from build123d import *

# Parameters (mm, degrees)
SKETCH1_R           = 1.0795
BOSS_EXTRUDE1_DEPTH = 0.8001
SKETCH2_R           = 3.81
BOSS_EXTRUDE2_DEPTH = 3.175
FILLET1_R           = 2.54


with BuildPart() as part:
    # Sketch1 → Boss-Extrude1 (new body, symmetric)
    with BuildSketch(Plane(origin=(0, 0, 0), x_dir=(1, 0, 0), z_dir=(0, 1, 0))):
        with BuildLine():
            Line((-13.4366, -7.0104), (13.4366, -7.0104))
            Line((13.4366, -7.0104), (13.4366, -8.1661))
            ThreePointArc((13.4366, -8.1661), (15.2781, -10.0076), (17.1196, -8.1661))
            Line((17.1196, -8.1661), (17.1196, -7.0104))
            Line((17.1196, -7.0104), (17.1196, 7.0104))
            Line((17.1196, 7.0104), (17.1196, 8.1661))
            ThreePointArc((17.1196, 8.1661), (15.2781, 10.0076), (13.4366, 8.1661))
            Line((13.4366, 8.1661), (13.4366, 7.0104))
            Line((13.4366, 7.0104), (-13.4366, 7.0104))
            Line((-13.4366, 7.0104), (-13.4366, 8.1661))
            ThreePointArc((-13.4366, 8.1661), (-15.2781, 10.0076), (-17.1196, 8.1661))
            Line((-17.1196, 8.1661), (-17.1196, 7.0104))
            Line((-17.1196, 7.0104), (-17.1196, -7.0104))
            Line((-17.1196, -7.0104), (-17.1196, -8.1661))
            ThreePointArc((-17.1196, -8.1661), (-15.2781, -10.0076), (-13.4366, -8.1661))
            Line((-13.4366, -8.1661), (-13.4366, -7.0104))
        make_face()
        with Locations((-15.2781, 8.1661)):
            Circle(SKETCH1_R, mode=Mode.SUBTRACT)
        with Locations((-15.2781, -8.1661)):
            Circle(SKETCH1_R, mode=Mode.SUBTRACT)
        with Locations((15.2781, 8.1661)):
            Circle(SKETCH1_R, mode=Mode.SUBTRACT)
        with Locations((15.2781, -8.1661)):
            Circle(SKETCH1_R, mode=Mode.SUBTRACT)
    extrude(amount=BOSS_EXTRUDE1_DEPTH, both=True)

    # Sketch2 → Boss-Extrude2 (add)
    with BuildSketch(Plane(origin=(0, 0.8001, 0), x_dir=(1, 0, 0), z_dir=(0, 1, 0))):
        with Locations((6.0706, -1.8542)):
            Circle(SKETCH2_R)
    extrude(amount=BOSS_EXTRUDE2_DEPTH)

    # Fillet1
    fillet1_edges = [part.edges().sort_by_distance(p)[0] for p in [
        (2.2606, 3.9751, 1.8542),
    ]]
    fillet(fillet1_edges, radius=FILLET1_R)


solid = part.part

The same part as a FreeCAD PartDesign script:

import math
import FreeCAD as App
import Part
import Sketcher

V = App.Vector
Q = App.Units.Quantity


def edges_at(feature, points):
    """Names of the edges that pass closest to the given points."""
    edges = feature.Shape.Edges
    near = lambda p: min(range(len(edges)), key=lambda i: edges[i].distToShape(Part.Vertex(*p))[0])
    return sorted({f"Edge{near(p) + 1}" for p in points})

doc = App.newDocument("Part")
body = doc.addObject("PartDesign::Body", "Body")

# Sketch on XZ plane
sketch1 = body.newObject("Sketcher::SketchObject", "Sketch")
sketch1.AttachmentSupport = (doc.getObject("XZ_Plane"), [""])
sketch1.MapMode = "FlatFace"
sketch1.addGeometry(Part.LineSegment(V(-13.4, 7, 0), V(13.4, 7, 0)), False)
sketch1.addGeometry(Part.LineSegment(V(13.4, 7, 0), V(13.4, 8.2, 0)), False)
sketch1.addGeometry(Part.ArcOfCircle(Part.Circle(V(15.3, 8.2, 0), V(0, 0, 1), 1.8), math.radians(0), math.radians(180)), False)
sketch1.addGeometry(Part.LineSegment(V(17.1, 8.2, 0), V(17.1, -8.2, 0)), False)
sketch1.addGeometry(Part.ArcOfCircle(Part.Circle(V(15.3, -8.2, 0), V(0, 0, 1), 1.8), math.radians(180), math.radians(360)), False)
sketch1.addGeometry(Part.LineSegment(V(13.4, -8.2, 0), V(13.4, -7, 0)), False)
sketch1.addGeometry(Part.LineSegment(V(13.4, -7, 0), V(-13.4, -7, 0)), False)
sketch1.addGeometry(Part.LineSegment(V(-13.4, -7, 0), V(-13.4, -8.2, 0)), False)
sketch1.addGeometry(Part.ArcOfCircle(Part.Circle(V(-15.3, -8.2, 0), V(0, 0, 1), 1.8), math.radians(180), math.radians(360)), False)
sketch1.addGeometry(Part.LineSegment(V(-17.1, -8.2, 0), V(-17.1, 8.2, 0)), False)
sketch1.addGeometry(Part.ArcOfCircle(Part.Circle(V(-15.3, 8.2, 0), V(0, 0, 1), 1.8), math.radians(0), math.radians(180)), False)
sketch1.addGeometry(Part.LineSegment(V(-13.4, 8.2, 0), V(-13.4, 7, 0)), False)
sketch1.addGeometry(Part.Circle(V(-15.3, 8.2, 0), V(0, 0, 1), 1.1), False)
sketch1.addGeometry(Part.Circle(V(15.3, 8.2, 0), V(0, 0, 1), 1.1), False)
sketch1.addGeometry(Part.Circle(V(-15.3, -8.2, 0), V(0, 0, 1), 1.1), False)
sketch1.addGeometry(Part.Circle(V(15.3, -8.2, 0), V(0, 0, 1), 1.1), False)
sketch1.addConstraint(Sketcher.Constraint("Coincident", 0, 2, 1, 1))
sketch1.addConstraint(Sketcher.Constraint("Tangent", 1, 2, 2, 2))
sketch1.addConstraint(Sketcher.Constraint("Tangent", 2, 1, 3, 1))
sketch1.addConstraint(Sketcher.Constraint("Tangent", 3, 2, 4, 2))
sketch1.addConstraint(Sketcher.Constraint("Tangent", 4, 1, 5, 1))
sketch1.addConstraint(Sketcher.Constraint("Coincident", 5, 2, 6, 1))
sketch1.addConstraint(Sketcher.Constraint("Coincident", 6, 2, 7, 1))
sketch1.addConstraint(Sketcher.Constraint("Tangent", 7, 2, 8, 2))
sketch1.addConstraint(Sketcher.Constraint("Tangent", 8, 1, 9, 1))
sketch1.addConstraint(Sketcher.Constraint("Tangent", 9, 2, 10, 2))
sketch1.addConstraint(Sketcher.Constraint("Tangent", 10, 1, 11, 1))
sketch1.addConstraint(Sketcher.Constraint("Coincident", 11, 2, 0, 1))
sketch1.addConstraint(Sketcher.Constraint("Horizontal", 0))
sketch1.addConstraint(Sketcher.Constraint("Vertical", 1))
sketch1.addConstraint(Sketcher.Constraint("Vertical", 3))
sketch1.addConstraint(Sketcher.Constraint("Vertical", 5))
sketch1.addConstraint(Sketcher.Constraint("Horizontal", 6))
sketch1.addConstraint(Sketcher.Constraint("Vertical", 7))
sketch1.addConstraint(Sketcher.Constraint("Vertical", 9))
sketch1.addConstraint(Sketcher.Constraint("Vertical", 11))
sketch1.addConstraint(Sketcher.Constraint("Coincident", 12, 3, 10, 3))
sketch1.addConstraint(Sketcher.Constraint("Coincident", 13, 3, 2, 3))
sketch1.addConstraint(Sketcher.Constraint("Coincident", 14, 3, 8, 3))
sketch1.addConstraint(Sketcher.Constraint("Coincident", 15, 3, 4, 3))
sketch1.addConstraint(Sketcher.Constraint("Equal", 2, 4))
sketch1.addConstraint(Sketcher.Constraint("Equal", 4, 8))
sketch1.addConstraint(Sketcher.Constraint("Equal", 8, 10))
sketch1.addConstraint(Sketcher.Constraint("Equal", 12, 13))
sketch1.addConstraint(Sketcher.Constraint("Equal", 13, 14))
sketch1.addConstraint(Sketcher.Constraint("Equal", 14, 15))
sketch1.addConstraint(Sketcher.Constraint("Symmetric", 2, 3, 8, 3, -1, 1))
sketch1.addConstraint(Sketcher.Constraint("Horizontal", 4, 3, 8, 3))
sketch1.addConstraint(Sketcher.Constraint("Horizontal", 2, 3, 10, 3))
sketch1.addConstraint(Sketcher.Constraint("Equal", 1, 5))
sketch1.addConstraint(Sketcher.Constraint("Diameter", 12, Q("0.085 in")))
sketch1.addConstraint(Sketcher.Constraint("Radius", 2, Q("0.0725 in")))
sketch1.addConstraint(Sketcher.Constraint("DistanceX", 0, 1, 0, 2, Q("1.058 in")))
sketch1.addConstraint(Sketcher.Constraint("DistanceY", 3, 2, 3, 1, Q("0.643 in")))
sketch1.addConstraint(Sketcher.Constraint("DistanceY", 1, 1, 1, 2, Q("0.0455 in")))
pad1 = body.newObject("PartDesign::Pad", "Pad")
pad1.Profile = sketch1
pad1.Length = Q("0.063 in")
pad1.Midplane = True

# Sketch on XZ plane
sketch2 = body.newObject("Sketcher::SketchObject", "Sketch001")
sketch2.AttachmentSupport = (doc.getObject("XZ_Plane"), [""])
sketch2.MapMode = "FlatFace"
sketch2.AttachmentOffset = App.Placement(V(0, 0, -0.0315 * 25.4), App.Rotation())
sketch2.addGeometry(Part.Circle(V(6.1, 1.9, 0), V(0, 0, 1), 3.8), False)
sketch2.addConstraint(Sketcher.Constraint("Diameter", 0, Q("0.3 in")))
sketch2.addConstraint(Sketcher.Constraint("DistanceX", -1, 1, 0, 3, Q("0.239 in")))
sketch2.addConstraint(Sketcher.Constraint("DistanceY", -1, 1, 0, 3, Q("0.073 in")))
pad2 = body.newObject("PartDesign::Pad", "Pad001")
pad2.Profile = sketch2
pad2.Length = Q("0.125 in")
pad2.Reversed = True
doc.recompute()

fillet = body.newObject("PartDesign::Fillet", "Fillet")
fillet.Base = (pad2, edges_at(pad2, [(2.261, 3.975, 1.854)]))
fillet.Radius = Q("0.1 in")

doc.recompute()
